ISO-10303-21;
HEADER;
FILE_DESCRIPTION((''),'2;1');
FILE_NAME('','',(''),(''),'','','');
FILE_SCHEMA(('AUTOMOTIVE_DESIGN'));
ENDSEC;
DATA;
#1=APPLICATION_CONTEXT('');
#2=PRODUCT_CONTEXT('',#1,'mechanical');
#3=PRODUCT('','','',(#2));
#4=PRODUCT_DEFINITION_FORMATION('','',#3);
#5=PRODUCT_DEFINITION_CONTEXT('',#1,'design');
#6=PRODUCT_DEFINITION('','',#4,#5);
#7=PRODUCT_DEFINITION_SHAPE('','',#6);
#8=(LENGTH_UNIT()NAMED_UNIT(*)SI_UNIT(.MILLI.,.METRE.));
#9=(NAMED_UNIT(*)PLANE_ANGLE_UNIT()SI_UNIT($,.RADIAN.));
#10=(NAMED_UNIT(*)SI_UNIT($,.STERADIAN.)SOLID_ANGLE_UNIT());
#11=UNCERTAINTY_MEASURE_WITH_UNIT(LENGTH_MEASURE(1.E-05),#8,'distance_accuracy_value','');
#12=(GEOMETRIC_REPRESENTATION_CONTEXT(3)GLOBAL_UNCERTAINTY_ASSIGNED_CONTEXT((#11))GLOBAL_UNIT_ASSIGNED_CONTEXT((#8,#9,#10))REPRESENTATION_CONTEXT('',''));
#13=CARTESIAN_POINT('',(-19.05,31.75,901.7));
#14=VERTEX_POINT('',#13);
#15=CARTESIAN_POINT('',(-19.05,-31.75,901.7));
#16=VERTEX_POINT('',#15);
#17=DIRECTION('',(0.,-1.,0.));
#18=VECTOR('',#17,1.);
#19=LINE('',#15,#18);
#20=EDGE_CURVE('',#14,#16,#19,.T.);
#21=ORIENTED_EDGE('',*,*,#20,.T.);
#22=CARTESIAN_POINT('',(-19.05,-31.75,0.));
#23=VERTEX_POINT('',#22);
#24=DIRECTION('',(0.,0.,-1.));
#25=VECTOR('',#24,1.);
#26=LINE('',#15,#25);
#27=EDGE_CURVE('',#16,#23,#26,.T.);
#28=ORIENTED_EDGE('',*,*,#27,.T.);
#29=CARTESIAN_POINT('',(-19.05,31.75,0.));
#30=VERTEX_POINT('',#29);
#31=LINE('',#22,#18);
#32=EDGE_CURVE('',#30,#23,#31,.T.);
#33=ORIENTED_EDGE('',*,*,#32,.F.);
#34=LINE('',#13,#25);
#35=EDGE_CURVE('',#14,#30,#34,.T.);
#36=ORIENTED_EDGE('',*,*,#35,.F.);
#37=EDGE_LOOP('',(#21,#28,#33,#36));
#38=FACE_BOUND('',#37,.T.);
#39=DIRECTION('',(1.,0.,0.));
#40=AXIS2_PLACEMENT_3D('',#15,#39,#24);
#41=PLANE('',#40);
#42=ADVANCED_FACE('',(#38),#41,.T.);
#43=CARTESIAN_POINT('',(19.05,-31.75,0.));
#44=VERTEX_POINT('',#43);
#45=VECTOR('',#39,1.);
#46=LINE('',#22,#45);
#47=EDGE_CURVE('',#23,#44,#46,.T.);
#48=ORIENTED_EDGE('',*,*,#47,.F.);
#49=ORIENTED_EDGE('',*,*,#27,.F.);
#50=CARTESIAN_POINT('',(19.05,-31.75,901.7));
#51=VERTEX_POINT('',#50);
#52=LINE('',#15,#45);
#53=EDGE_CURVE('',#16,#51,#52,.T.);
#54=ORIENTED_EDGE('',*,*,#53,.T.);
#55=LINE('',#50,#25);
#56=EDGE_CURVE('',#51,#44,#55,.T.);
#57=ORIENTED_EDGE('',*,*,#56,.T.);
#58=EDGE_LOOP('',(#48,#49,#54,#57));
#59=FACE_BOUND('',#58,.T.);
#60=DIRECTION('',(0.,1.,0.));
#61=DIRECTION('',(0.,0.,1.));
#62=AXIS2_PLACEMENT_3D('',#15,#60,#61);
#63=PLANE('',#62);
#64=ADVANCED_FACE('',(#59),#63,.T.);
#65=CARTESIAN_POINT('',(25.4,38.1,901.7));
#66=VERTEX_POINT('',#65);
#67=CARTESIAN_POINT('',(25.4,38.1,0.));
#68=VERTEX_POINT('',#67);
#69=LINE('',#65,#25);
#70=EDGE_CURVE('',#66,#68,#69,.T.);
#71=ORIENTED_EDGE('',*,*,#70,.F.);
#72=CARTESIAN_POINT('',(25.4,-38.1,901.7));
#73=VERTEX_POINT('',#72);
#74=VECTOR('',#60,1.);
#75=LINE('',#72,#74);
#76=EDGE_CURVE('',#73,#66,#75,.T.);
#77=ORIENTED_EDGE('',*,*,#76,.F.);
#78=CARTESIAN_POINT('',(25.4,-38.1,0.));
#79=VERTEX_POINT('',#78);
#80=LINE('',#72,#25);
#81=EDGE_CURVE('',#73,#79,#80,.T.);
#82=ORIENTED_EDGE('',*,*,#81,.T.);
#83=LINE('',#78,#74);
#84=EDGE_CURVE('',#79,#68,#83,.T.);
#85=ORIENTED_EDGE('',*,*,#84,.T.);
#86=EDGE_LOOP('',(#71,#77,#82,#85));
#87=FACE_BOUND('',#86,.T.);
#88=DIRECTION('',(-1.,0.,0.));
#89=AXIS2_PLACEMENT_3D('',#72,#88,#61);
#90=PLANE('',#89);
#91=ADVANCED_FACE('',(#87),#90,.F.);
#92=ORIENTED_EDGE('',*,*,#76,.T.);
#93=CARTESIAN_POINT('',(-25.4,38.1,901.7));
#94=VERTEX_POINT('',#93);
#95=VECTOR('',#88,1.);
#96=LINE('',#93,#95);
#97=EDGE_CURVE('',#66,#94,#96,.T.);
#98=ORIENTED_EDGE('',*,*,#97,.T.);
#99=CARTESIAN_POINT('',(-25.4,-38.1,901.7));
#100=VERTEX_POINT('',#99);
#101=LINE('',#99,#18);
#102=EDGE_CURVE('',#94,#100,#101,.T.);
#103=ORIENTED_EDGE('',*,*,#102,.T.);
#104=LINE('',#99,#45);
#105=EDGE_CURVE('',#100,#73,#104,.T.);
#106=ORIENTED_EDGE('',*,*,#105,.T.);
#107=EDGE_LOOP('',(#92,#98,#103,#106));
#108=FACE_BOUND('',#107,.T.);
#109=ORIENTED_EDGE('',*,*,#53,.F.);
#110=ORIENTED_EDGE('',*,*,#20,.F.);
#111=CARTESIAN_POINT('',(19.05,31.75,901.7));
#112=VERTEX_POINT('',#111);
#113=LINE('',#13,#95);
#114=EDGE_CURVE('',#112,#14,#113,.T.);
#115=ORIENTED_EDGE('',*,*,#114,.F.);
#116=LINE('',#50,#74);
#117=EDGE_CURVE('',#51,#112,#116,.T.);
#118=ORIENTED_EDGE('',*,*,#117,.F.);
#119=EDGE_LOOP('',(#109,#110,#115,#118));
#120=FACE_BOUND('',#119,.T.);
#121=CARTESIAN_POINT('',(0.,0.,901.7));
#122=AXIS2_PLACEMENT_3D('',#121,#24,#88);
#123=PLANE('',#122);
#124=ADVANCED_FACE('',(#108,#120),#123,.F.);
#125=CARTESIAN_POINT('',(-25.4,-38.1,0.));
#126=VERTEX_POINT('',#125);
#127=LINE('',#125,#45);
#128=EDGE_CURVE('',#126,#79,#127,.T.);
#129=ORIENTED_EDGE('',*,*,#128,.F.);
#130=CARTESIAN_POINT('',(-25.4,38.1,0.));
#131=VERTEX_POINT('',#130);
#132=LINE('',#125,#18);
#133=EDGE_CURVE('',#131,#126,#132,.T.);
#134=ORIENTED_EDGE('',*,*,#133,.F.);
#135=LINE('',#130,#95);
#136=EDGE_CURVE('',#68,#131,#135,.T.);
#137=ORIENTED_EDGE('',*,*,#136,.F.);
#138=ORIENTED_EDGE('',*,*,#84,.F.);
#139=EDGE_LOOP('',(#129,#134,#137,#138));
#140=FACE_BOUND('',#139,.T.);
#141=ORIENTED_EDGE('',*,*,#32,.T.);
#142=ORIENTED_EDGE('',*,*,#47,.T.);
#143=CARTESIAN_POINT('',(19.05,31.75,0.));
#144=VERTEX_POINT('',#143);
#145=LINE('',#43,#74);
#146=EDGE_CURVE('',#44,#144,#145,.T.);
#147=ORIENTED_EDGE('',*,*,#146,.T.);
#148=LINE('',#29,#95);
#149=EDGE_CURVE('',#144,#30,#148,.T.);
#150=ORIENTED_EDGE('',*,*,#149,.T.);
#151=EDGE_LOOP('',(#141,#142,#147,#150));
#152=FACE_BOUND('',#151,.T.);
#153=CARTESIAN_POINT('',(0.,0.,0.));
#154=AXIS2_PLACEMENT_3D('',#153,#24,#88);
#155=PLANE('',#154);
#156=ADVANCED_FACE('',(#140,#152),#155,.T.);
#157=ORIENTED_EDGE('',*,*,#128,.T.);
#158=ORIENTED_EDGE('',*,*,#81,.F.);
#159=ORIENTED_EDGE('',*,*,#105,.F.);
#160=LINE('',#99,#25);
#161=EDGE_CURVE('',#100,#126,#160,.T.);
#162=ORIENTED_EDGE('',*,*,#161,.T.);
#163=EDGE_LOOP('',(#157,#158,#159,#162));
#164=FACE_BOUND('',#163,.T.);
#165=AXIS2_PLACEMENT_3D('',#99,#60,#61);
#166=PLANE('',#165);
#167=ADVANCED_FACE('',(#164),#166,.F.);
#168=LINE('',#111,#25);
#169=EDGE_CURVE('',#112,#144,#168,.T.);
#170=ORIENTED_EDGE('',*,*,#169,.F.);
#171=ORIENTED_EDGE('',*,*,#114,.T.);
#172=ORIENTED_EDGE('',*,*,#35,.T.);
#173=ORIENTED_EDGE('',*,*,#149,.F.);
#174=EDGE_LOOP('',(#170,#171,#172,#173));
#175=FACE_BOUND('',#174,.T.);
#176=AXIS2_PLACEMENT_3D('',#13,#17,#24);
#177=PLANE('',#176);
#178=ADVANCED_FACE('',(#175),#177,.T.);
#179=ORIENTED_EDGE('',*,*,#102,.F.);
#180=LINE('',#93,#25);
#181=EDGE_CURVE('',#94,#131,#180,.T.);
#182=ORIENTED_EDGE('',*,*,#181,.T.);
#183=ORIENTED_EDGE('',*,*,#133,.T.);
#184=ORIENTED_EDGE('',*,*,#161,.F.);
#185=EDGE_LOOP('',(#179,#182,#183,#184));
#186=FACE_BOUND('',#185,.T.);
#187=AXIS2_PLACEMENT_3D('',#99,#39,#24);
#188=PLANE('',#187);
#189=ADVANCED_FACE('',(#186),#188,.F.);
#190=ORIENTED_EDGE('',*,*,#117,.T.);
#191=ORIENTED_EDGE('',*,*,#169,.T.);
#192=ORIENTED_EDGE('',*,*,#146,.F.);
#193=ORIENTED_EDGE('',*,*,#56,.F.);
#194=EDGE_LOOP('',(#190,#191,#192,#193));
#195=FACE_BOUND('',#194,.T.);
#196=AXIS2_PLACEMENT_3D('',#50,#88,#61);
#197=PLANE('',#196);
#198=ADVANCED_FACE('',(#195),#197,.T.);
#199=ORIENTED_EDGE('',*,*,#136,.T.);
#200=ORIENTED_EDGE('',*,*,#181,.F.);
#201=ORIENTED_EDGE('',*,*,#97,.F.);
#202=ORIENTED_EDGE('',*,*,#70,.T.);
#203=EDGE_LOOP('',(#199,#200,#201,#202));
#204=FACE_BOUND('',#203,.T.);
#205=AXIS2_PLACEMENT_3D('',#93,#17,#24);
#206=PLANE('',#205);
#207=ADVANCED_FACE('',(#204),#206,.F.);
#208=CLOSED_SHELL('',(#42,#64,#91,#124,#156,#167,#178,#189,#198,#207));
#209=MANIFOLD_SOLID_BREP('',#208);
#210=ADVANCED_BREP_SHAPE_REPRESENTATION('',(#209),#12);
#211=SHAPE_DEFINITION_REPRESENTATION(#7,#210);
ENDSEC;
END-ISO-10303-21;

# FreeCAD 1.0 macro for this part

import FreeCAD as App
import Part
import Sketcher

V = App.Vector
Q = App.Units.Quantity


def add_polygon(sketch, points):
    """Adds a closed chain of lines whose ends are joined by coincident constraints."""
    first, n = sketch.GeometryCount, len(points)
    for a, b in zip(points, points[1:] + points[:1]):
        sketch.addGeometry(Part.LineSegment(App.Vector(*a, 0), App.Vector(*b, 0)), False)
    for i in range(n):
        sketch.addConstraint(Sketcher.Constraint("Coincident", first + i, 2, first + (i + 1) % n, 1))

doc = App.newDocument("Part")
params = doc.addObject("Spreadsheet::Sheet", "Params")
for row, (alias, value) in enumerate([
    ("sketch1_width", "2 in"),
    ("sketch1_height", "3 in"),
    ("sketch1_width2", "1.5 in"),
    ("sketch1_height2", "2.5 in"),
    ("pad1_length", "35.5 in"),
], start=1):
    params.set(f"A{row}", alias)
    params.set(f"B{row}", "=" + value)
    params.setAlias(f"B{row}", alias)

body = doc.addObject("PartDesign::Body", "Body")

sketch1 = body.newObject("Sketcher::SketchObject", "Sketch")
sketch1.AttachmentSupport = (doc.getObject("XY_Plane"), [""])
sketch1.MapMode = "FlatFace"
add_polygon(sketch1, [(-25.4, 38.1), (-25.4, -38.1), (25.4, -38.1), (25.4, 38.1)])
add_polygon(sketch1, [(19.05, -31.75), (-19.05, -31.75), (-19.05, 31.75), (19.05, 31.75)])
sketch1.addConstraint(Sketcher.Constraint("Vertical", 0))
sketch1.addConstraint(Sketcher.Constraint("Horizontal", 1))
sketch1.addConstraint(Sketcher.Constraint("Vertical", 2))
sketch1.addConstraint(Sketcher.Constraint("Horizontal", 3))
sketch1.addConstraint(Sketcher.Constraint("Horizontal", 4))
sketch1.addConstraint(Sketcher.Constraint("Vertical", 5))
sketch1.addConstraint(Sketcher.Constraint("Horizontal", 6))
sketch1.addConstraint(Sketcher.Constraint("Vertical", 7))
sketch1.addConstraint(Sketcher.Constraint("Symmetric", 0, 2, 2, 2, -1, 1))
sketch1.addConstraint(Sketcher.Constraint("Symmetric", 4, 2, 6, 2, -1, 1))
sketch1.addConstraint(Sketcher.Constraint("DistanceX", 1, 1, 1, 2, Q("2 in")))
sketch1.addConstraint(Sketcher.Constraint("DistanceY", 0, 2, 0, 1, Q("3 in")))
sketch1.addConstraint(Sketcher.Constraint("DistanceX", 4, 2, 4, 1, Q("1.5 in")))
sketch1.addConstraint(Sketcher.Constraint("DistanceY", 5, 1, 5, 2, Q("2.5 in")))
sketch1.setExpression("Constraints[18]", "Params.sketch1_width")
sketch1.setExpression("Constraints[19]", "Params.sketch1_height")
sketch1.setExpression("Constraints[20]", "Params.sketch1_width2")
sketch1.setExpression("Constraints[21]", "Params.sketch1_height2")
pad1 = body.newObject("PartDesign::Pad", "Pad")
pad1.Profile = sketch1
pad1.setExpression("Length", "Params.pad1_length")

doc.recompute()
